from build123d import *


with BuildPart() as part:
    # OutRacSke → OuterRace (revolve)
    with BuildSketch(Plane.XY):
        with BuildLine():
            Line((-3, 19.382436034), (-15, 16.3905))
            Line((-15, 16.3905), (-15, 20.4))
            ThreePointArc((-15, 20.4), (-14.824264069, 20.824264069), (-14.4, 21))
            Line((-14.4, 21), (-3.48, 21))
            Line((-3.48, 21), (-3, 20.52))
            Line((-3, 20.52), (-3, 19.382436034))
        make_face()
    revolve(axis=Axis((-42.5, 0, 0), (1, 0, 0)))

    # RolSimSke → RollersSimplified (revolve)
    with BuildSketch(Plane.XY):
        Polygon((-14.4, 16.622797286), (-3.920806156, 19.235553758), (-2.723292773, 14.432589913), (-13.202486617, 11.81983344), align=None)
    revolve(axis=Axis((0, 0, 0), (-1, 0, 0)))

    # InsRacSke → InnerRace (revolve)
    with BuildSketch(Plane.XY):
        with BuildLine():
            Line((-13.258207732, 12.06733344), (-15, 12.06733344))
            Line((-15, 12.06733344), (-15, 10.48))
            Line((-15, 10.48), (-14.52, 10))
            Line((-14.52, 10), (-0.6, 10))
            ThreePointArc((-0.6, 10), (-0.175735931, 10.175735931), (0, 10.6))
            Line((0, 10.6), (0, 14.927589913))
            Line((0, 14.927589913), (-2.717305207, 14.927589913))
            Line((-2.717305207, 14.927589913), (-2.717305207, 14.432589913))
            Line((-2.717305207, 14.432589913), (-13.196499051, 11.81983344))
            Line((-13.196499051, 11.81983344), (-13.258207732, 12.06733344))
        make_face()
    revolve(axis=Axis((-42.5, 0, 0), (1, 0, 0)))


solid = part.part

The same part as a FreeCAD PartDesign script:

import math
import FreeCAD as App
import Part
import Sketcher
Q = App.Units.Quantity

doc = App.newDocument("Part")
body = doc.addObject("PartDesign::Body", "Body")

sketch1 = body.newObject("Sketcher::SketchObject", "Sketch")
sketch1.AttachmentSupport = (doc.getObject("XY_Plane"), [""])
sketch1.MapMode = "FlatFace"
sketch1.addGeometry(Part.LineSegment(App.Vector(-15, 16.4, 0), App.Vector(-3, 19.4, 0)), False)
sketch1.addGeometry(Part.LineSegment(App.Vector(-3, 19.4, 0), App.Vector(-3, 20.5, 0)), False)
sketch1.addGeometry(Part.LineSegment(App.Vector(-3, 20.5, 0), App.Vector(-3.5, 21, 0)), False)
sketch1.addGeometry(Part.LineSegment(App.Vector(-3.5, 21, 0), App.Vector(-14.4, 21, 0)), False)
sketch1.addGeometry(Part.ArcOfCircle(Part.Circle(App.Vector(-14.4, 20.4, 0), App.Vector(0, 0, 1), 0.6), math.radians(90), math.radians(180)), False)
sketch1.addGeometry(Part.LineSegment(App.Vector(-15, 20.4, 0), App.Vector(-15, 16.4, 0)), False)
sketch1.addConstraint(Sketcher.Constraint("Coincident", 0, 2, 1, 1))
sketch1.addConstraint(Sketcher.Constraint("Coincident", 1, 2, 2, 1))
sketch1.addConstraint(Sketcher.Constraint("Coincident", 2, 2, 3, 1))
sketch1.addConstraint(Sketcher.Constraint("Tangent", 3, 2, 4, 1))
sketch1.addConstraint(Sketcher.Constraint("Tangent", 4, 2, 5, 1))
sketch1.addConstraint(Sketcher.Constraint("Coincident", 5, 2, 0, 1))
sketch1.addConstraint(Sketcher.Constraint("Vertical", 1))
sketch1.addConstraint(Sketcher.Constraint("Horizontal", 3))
sketch1.addConstraint(Sketcher.Constraint("Vertical", 5))
sketch1.addConstraint(Sketcher.Constraint("Radius", 4, 0.6))
sketch1.addConstraint(Sketcher.Constraint("Angle", 0, Q("14 deg")))
sketch1.addConstraint(Sketcher.Constraint("Angle", 2, Q("135 deg")))
sketch1.addConstraint(Sketcher.Constraint("DistanceX", 0, 2, -1, 1, 3.0))
sketch1.addConstraint(Sketcher.Constraint("DistanceY", -1, 1, 2, 2, 21.0))
sketch1.addConstraint(Sketcher.Constraint("DistanceX", 4, 2, -1, 1, 15.0))
sketch1.addConstraint(Sketcher.Constraint("DistanceX", 3, 2, 3, 1, 10.92))
sketch1.addConstraint(Sketcher.Constraint("DistanceY", 5, 2, 5, 1, 4.0095))
revolution = body.newObject("PartDesign::Revolution", "Revolution")
revolution.Profile = sketch1
revolution.ReferenceAxis = (sketch1, ["H_Axis"])
revolution.Angle = 360

sketch2 = body.newObject("Sketcher::SketchObject", "Sketch001")
sketch2.AttachmentSupport = (doc.getObject("XY_Plane"), [""])
sketch2.MapMode = "FlatFace"
sketch2.addGeometry(Part.LineSegment(App.Vector(-3.9, 19.2, 0), App.Vector(-14.4, 16.6, 0)), False)
sketch2.addGeometry(Part.LineSegment(App.Vector(-14.4, 16.6, 0), App.Vector(-13.2, 11.8, 0)), False)
sketch2.addGeometry(Part.LineSegment(App.Vector(-13.2, 11.8, 0), App.Vector(-2.7, 14.4, 0)), False)
sketch2.addGeometry(Part.LineSegment(App.Vector(-2.7, 14.4, 0), App.Vector(-3.9, 19.2, 0)), False)
sketch2.addConstraint(Sketcher.Constraint("Coincident", 0, 2, 1, 1))
sketch2.addConstraint(Sketcher.Constraint("Coincident", 1, 2, 2, 1))
sketch2.addConstraint(Sketcher.Constraint("Coincident", 2, 2, 3, 1))
sketch2.addConstraint(Sketcher.Constraint("Coincident", 3, 2, 0, 1))
sketch2.addConstraint(Sketcher.Constraint("Perpendicular", 0, 1))
sketch2.addConstraint(Sketcher.Constraint("Perpendicular", 1, 2))
sketch2.addConstraint(Sketcher.Constraint("Perpendicular", 2, 3))
sketch2.addConstraint(Sketcher.Constraint("Angle", 0, Q("-166 deg")))
sketch2.addConstraint(Sketcher.Constraint("Distance", 0, 10.8))
sketch2.addConstraint(Sketcher.Constraint("DistanceX", 0, 2, -1, 1, 14.4))
sketch2.addConstraint(Sketcher.Constraint("Distance", 1, 4.95))
sketch2.addConstraint(Sketcher.Constraint("DistanceY", -1, 1, 2, 2, 14.43259))
revolution2 = body.newObject("PartDesign::Revolution", "Revolution001")
revolution2.Profile = sketch2
revolution2.ReferenceAxis = (sketch2, ["H_Axis"])
revolution2.Angle = 360

sketch3 = body.newObject("Sketcher::SketchObject", "Sketch002")
sketch3.AttachmentSupport = (doc.getObject("XY_Plane"), [""])
sketch3.MapMode = "FlatFace"
sketch3.addGeometry(Part.LineSegment(App.Vector(-13.26, 12.07, 0), App.Vector(-15, 12.07, 0)), False)
sketch3.addGeometry(Part.LineSegment(App.Vector(-15, 12.07, 0), App.Vector(-15, 10.48, 0)), False)
sketch3.addGeometry(Part.LineSegment(App.Vector(-15, 10.48, 0), App.Vector(-14.52, 10, 0)), False)
sketch3.addGeometry(Part.LineSegment(App.Vector(-14.52, 10, 0), App.Vector(-0.6, 10, 0)), False)
sketch3.addGeometry(Part.ArcOfCircle(Part.Circle(App.Vector(-0.6, 10.6, 0), App.Vector(0, 0, 1), 0.6), math.radians(-90), math.radians(0)), False)
sketch3.addGeometry(Part.LineSegment(App.Vector(0, 10.6, 0), App.Vector(0, 14.93, 0)), False)
sketch3.addGeometry(Part.LineSegment(App.Vector(0, 14.93, 0), App.Vector(-2.72, 14.93, 0)), False)
sketch3.addGeometry(Part.LineSegment(App.Vector(-2.72, 14.93, 0), App.Vector(-2.72, 14.43, 0)), False)
sketch3.addGeometry(Part.LineSegment(App.Vector(-2.72, 14.43, 0), App.Vector(-13.2, 11.82, 0)), False)
sketch3.addGeometry(Part.LineSegment(App.Vector(-13.2, 11.82, 0), App.Vector(-13.26, 12.07, 0)), False)
sketch3.addConstraint(Sketcher.Constraint("Coincident", 0, 2, 1, 1))
sketch3.addConstraint(Sketcher.Constraint("Coincident", 1, 2, 2, 1))
sketch3.addConstraint(Sketcher.Constraint("Coincident", 2, 2, 3, 1))
sketch3.addConstraint(Sketcher.Constraint("Tangent", 3, 2, 4, 1))
sketch3.addConstraint(Sketcher.Constraint("Tangent", 4, 2, 5, 1))
sketch3.addConstraint(Sketcher.Constraint("Coincident", 5, 2, 6, 1))
sketch3.addConstraint(Sketcher.Constraint("Coincident", 6, 2, 7, 1))
sketch3.addConstraint(Sketcher.Constraint("Coincident", 7, 2, 8, 1))
sketch3.addConstraint(Sketcher.Constraint("Coincident", 8, 2, 9, 1))
sketch3.addConstraint(Sketcher.Constraint("Coincident", 9, 2, 0, 1))
sketch3.addConstraint(Sketcher.Constraint("Horizontal", 0))
sketch3.addConstraint(Sketcher.Constraint("Vertical", 1))
sketch3.addConstraint(Sketcher.Constraint("Horizontal", 3))
sketch3.addConstraint(Sketcher.Constraint("Vertical", 5))
sketch3.addConstraint(Sketcher.Constraint("Horizontal", 6))
sketch3.addConstraint(Sketcher.Constraint("Vertical", 7))
sketch3.addConstraint(Sketcher.Constraint("PointOnObject", 4, 2, -2))
sketch3.addConstraint(Sketcher.Constraint("Perpendicular", 8, 9))
sketch3.addConstraint(Sketcher.Constraint("Radius", 4, 0.6))
sketch3.addConstraint(Sketcher.Constraint("Angle", 2, Q("-45 deg")))
sketch3.addConstraint(Sketcher.Constraint("Angle", 8, Q("-166 deg")))
sketch3.addConstraint(Sketcher.Constraint("DistanceX", 0, 2, -1, 1, 15.0))
sketch3.addConstraint(Sketcher.Constraint("DistanceY", -1, 1, 2, 2, 10.0))
sketch3.addConstraint(Sketcher.Constraint("Distance", 8, 10.8))
sketch3.addConstraint(Sketcher.Constraint("DistanceX", 3, 1, 3, 2, 13.92))
sketch3.addConstraint(Sketcher.Constraint("DistanceY", 7, 2, 7, 1, 0.495))
sketch3.addConstraint(Sketcher.Constraint("DistanceY", 5, 1, 5, 2, 4.32759))
sketch3.addConstraint(Sketcher.Constraint("DistanceX", 8, 2, -1, 1, 13.196499))
sketch3.addConstraint(Sketcher.Constraint("DistanceY", 8, 2, 0, 2, 0.2475))
revolution3 = body.newObject("PartDesign::Revolution", "Revolution002")
revolution3.Profile = sketch3
revolution3.ReferenceAxis = (sketch3, ["H_Axis"])
revolution3.Angle = 360

doc.recompute()
